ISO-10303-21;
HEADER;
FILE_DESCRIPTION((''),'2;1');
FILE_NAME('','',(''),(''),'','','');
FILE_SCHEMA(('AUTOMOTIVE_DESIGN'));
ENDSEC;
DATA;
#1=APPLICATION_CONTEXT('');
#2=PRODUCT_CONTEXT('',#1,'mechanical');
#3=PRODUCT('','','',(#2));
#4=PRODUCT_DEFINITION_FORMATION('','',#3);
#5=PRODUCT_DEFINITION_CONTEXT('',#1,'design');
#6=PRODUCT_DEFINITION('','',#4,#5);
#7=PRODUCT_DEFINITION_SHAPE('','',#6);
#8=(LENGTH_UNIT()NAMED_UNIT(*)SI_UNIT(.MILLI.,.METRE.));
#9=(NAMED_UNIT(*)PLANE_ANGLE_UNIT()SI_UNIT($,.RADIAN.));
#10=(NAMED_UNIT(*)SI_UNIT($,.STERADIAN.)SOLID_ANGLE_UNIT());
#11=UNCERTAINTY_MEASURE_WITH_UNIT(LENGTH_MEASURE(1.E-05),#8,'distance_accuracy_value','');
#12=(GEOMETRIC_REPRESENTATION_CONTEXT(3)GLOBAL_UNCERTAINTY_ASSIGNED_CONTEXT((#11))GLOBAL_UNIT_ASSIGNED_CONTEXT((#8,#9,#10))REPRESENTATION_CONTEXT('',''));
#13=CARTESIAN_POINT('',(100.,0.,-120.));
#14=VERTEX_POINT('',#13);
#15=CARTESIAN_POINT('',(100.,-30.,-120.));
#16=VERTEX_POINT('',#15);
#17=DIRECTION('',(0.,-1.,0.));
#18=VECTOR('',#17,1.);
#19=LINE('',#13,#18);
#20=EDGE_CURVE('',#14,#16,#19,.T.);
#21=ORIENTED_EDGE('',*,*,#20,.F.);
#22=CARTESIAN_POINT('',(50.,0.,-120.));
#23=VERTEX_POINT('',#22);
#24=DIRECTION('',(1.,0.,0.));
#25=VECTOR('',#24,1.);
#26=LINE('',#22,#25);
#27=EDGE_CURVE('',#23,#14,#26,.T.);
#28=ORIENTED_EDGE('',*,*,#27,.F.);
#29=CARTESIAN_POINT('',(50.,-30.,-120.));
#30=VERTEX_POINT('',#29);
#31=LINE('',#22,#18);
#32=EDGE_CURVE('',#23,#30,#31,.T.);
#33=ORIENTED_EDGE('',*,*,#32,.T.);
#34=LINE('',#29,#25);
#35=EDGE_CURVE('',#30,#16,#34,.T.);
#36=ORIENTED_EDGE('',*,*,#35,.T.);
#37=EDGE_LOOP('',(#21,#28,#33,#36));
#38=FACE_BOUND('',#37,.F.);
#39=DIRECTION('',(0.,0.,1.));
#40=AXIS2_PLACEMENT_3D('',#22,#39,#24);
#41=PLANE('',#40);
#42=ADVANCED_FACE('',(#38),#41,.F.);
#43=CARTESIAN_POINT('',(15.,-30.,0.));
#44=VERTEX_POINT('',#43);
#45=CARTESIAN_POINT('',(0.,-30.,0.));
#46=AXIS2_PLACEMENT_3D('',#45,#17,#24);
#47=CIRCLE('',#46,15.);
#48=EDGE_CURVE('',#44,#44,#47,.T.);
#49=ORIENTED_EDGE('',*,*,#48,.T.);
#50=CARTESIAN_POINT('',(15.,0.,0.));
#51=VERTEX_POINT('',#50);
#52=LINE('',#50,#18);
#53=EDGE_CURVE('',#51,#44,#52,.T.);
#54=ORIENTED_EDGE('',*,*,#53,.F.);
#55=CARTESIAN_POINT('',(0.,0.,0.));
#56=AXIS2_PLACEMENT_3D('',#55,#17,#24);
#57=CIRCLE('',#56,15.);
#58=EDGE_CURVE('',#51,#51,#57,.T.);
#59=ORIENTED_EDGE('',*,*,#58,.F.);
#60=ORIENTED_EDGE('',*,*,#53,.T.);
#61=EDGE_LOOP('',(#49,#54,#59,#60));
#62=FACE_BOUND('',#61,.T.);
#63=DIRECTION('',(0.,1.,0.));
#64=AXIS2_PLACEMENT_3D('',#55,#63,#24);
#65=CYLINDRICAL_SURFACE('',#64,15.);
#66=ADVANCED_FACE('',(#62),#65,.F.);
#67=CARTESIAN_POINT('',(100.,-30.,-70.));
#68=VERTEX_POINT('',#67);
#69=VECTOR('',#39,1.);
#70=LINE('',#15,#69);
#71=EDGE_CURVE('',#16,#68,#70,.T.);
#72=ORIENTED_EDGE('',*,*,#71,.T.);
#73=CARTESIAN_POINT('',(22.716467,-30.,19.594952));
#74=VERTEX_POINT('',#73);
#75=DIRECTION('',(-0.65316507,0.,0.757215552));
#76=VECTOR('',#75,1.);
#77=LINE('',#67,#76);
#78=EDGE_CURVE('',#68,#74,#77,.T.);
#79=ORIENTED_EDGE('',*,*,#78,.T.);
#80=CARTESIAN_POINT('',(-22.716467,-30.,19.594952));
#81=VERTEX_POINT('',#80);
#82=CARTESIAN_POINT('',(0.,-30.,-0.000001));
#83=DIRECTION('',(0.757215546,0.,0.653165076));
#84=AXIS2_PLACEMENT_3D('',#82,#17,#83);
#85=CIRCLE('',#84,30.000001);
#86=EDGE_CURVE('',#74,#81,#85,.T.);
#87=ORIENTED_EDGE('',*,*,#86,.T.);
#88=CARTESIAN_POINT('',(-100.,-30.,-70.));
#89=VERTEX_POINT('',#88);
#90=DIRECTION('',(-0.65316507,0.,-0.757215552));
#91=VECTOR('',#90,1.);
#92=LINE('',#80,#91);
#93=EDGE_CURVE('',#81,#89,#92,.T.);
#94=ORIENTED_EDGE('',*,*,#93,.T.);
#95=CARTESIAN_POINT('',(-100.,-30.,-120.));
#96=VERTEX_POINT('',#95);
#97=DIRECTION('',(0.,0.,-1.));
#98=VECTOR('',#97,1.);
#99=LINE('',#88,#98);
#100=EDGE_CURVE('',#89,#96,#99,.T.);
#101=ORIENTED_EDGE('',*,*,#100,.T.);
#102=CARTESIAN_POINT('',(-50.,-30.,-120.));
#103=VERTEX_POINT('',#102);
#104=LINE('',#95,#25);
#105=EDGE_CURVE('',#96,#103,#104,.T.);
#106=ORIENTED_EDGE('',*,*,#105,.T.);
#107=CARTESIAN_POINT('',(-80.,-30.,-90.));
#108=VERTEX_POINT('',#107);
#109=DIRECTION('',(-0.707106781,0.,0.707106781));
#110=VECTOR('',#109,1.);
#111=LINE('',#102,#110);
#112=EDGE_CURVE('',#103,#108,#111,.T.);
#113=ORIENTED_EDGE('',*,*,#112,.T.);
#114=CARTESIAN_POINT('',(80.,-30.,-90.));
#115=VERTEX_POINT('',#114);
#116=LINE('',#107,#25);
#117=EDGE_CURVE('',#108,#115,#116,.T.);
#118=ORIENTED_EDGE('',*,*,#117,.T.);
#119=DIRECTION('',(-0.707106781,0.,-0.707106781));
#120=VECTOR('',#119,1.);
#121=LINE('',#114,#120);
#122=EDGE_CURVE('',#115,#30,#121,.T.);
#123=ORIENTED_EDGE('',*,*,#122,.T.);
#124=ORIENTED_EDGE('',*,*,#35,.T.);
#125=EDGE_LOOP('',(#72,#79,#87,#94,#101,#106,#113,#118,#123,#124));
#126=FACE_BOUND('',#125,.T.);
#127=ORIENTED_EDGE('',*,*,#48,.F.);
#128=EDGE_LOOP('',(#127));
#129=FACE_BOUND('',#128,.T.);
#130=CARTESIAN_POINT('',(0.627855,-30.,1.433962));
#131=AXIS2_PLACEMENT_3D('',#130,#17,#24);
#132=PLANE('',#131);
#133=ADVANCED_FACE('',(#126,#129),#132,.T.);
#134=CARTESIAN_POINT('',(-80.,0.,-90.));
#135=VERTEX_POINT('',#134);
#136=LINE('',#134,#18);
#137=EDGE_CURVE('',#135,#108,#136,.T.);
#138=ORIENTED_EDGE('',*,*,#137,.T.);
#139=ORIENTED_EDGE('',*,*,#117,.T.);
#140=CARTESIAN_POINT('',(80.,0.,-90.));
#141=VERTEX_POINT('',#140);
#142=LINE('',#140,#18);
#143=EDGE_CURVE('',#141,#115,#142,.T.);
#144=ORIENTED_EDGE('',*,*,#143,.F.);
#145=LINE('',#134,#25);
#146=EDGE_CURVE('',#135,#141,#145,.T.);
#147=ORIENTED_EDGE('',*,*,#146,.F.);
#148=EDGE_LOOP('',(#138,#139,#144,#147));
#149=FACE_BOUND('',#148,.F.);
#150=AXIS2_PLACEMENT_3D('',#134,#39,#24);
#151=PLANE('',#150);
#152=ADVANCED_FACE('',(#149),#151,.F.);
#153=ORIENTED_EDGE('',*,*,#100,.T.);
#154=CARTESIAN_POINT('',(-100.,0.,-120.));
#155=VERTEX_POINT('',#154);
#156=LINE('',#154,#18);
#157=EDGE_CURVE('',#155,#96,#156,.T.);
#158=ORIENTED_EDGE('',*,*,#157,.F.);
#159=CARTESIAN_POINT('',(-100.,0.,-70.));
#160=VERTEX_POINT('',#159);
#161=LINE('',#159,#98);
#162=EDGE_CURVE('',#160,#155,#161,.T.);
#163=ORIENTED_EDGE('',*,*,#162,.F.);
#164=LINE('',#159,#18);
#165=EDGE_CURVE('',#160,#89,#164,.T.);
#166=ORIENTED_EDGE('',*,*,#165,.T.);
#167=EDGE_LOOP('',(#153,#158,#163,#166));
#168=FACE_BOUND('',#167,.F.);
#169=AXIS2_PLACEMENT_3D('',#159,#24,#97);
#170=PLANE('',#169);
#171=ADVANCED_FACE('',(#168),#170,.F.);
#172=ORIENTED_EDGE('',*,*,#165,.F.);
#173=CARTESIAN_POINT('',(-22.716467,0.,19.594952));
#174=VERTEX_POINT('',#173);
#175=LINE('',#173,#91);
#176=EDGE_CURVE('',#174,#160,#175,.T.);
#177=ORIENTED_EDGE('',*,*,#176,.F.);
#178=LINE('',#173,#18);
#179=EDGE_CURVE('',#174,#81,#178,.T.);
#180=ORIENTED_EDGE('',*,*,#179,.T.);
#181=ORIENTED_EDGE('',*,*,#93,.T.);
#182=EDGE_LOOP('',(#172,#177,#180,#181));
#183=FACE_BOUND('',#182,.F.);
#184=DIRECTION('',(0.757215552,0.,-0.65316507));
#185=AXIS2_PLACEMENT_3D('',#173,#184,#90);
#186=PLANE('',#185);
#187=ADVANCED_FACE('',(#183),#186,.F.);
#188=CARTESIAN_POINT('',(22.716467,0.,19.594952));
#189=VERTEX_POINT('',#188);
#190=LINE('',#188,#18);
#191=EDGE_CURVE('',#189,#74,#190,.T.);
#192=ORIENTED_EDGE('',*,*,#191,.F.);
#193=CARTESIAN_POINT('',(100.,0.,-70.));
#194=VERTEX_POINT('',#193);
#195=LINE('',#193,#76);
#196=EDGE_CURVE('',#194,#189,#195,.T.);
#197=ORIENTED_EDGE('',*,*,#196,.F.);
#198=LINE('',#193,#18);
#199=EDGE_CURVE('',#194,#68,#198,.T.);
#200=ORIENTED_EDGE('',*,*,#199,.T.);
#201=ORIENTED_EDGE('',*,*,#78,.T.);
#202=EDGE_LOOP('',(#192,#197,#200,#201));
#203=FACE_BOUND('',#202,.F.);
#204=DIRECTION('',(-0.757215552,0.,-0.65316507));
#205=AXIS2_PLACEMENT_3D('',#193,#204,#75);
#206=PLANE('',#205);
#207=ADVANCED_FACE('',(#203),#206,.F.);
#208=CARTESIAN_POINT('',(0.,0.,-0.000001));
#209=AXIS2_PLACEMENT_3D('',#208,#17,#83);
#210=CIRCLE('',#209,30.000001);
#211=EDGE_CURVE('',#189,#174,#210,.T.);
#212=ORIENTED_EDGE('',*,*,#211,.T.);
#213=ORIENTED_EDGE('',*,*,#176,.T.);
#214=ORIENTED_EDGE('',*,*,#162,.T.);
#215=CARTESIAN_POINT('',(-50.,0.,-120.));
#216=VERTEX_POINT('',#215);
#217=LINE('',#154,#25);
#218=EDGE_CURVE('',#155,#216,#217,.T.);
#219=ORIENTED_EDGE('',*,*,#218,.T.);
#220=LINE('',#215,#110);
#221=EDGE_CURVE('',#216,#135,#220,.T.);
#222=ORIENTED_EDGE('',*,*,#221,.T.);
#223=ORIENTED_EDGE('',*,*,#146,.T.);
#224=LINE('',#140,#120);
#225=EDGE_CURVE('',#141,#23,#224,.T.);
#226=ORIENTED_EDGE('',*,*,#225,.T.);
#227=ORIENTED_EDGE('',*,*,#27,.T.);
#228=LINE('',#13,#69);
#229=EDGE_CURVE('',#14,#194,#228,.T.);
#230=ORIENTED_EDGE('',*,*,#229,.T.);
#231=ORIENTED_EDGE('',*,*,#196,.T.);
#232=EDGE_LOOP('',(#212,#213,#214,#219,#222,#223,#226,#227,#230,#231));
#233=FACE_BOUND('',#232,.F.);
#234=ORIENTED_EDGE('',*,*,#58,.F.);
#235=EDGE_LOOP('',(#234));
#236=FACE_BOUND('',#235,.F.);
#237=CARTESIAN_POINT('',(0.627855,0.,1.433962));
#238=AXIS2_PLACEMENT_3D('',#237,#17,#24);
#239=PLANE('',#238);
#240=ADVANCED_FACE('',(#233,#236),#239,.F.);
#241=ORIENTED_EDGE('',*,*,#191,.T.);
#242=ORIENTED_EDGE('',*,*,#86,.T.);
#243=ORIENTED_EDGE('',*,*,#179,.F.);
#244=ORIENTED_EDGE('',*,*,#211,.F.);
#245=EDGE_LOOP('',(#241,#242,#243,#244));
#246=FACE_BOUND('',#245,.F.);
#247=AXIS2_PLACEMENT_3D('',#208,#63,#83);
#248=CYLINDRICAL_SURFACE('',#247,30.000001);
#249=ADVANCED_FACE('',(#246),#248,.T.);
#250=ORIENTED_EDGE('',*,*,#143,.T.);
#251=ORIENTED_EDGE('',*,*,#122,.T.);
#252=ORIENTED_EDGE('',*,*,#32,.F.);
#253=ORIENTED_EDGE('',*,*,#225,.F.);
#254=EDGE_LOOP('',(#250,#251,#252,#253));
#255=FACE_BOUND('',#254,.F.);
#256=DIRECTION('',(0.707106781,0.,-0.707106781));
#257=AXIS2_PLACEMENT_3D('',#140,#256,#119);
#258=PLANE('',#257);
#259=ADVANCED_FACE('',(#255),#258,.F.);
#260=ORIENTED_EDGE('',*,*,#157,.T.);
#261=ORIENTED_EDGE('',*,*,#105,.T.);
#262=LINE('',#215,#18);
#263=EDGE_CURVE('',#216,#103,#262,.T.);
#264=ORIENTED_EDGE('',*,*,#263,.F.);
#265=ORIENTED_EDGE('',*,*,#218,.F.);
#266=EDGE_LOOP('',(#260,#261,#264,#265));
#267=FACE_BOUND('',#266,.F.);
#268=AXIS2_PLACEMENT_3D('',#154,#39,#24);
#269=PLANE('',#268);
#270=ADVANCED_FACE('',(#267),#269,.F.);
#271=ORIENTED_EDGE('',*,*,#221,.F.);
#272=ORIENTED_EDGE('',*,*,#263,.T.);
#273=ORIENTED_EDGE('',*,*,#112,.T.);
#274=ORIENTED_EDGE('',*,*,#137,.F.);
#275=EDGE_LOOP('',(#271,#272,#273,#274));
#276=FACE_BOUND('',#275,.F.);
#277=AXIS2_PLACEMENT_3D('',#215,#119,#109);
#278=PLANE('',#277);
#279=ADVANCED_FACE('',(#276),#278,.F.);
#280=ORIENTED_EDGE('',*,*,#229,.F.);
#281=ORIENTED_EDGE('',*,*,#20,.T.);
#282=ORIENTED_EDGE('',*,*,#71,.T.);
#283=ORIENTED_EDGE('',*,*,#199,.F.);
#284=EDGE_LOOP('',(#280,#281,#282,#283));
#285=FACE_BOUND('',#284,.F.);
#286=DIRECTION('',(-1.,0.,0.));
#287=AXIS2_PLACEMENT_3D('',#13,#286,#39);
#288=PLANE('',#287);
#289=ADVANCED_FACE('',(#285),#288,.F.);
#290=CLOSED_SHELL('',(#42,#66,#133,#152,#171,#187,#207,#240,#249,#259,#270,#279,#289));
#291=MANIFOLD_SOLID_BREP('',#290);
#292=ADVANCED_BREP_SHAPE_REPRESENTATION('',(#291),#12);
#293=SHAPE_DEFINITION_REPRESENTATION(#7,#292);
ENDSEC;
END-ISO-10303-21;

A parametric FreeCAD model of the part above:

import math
import FreeCAD as App
import Part
import Sketcher
Q = App.Units.Quantity

doc = App.newDocument("Part")
body = doc.addObject("PartDesign::Body", "Body")

# Sketch on XZ plane
sketch1 = body.newObject("Sketcher::SketchObject", "Sketch")
sketch1.AttachmentSupport = (doc.getObject("XZ_Plane"), [""])
sketch1.MapMode = "FlatFace"
sketch1.addGeometry(Part.ArcOfCircle(Part.Circle(App.Vector(0, -0.000001, 0), App.Vector(0, 0, 1), 30.000001), math.radians(40.780662), math.radians(139.219338)), False)
sketch1.addGeometry(Part.LineSegment(App.Vector(-22.716467, 19.594952, 0), App.Vector(-100, -70, 0)), False)
sketch1.addGeometry(Part.LineSegment(App.Vector(-100, -70, 0), App.Vector(-100, -120, 0)), False)
sketch1.addGeometry(Part.LineSegment(App.Vector(-100, -120, 0), App.Vector(-50, -120, 0)), False)
sketch1.addGeometry(Part.LineSegment(App.Vector(-50, -120, 0), App.Vector(-80, -90, 0)), False)
sketch1.addGeometry(Part.LineSegment(App.Vector(-80, -90, 0), App.Vector(80, -90, 0)), False)
sketch1.addGeometry(Part.LineSegment(App.Vector(80, -90, 0), App.Vector(50, -120, 0)), False)
sketch1.addGeometry(Part.LineSegment(App.Vector(50, -120, 0), App.Vector(100, -120, 0)), False)
sketch1.addGeometry(Part.LineSegment(App.Vector(100, -120, 0), App.Vector(100, -70, 0)), False)
sketch1.addGeometry(Part.LineSegment(App.Vector(100, -70, 0), App.Vector(22.716467, 19.594952, 0)), False)
sketch1.addGeometry(Part.Circle(App.Vector(0, 0, 0), App.Vector(0, 0, 1), 15), False)
sketch1.addConstraint(Sketcher.Constraint("Tangent", 0, 2, 1, 1))
sketch1.addConstraint(Sketcher.Constraint("Coincident", 1, 2, 2, 1))
sketch1.addConstraint(Sketcher.Constraint("Coincident", 2, 2, 3, 1))
sketch1.addConstraint(Sketcher.Constraint("Coincident", 3, 2, 4, 1))
sketch1.addConstraint(Sketcher.Constraint("Coincident", 4, 2, 5, 1))
sketch1.addConstraint(Sketcher.Constraint("Coincident", 5, 2, 6, 1))
sketch1.addConstraint(Sketcher.Constraint("Coincident", 6, 2, 7, 1))
sketch1.addConstraint(Sketcher.Constraint("Coincident", 7, 2, 8, 1))
sketch1.addConstraint(Sketcher.Constraint("Coincident", 8, 2, 9, 1))
sketch1.addConstraint(Sketcher.Constraint("Tangent", 9, 2, 0, 1))
sketch1.addConstraint(Sketcher.Constraint("Vertical", 2))
sketch1.addConstraint(Sketcher.Constraint("Horizontal", 3))
sketch1.addConstraint(Sketcher.Constraint("Horizontal", 5))
sketch1.addConstraint(Sketcher.Constraint("Horizontal", 7))
sketch1.addConstraint(Sketcher.Constraint("Vertical", 8))
sketch1.addConstraint(Sketcher.Constraint("Coincident", 0, 3, -1, 1))
sketch1.addConstraint(Sketcher.Constraint("Coincident", 10, 3, -1, 1))
sketch1.addConstraint(Sketcher.Constraint("Symmetric", 3, 2, 6, 2, -2))
sketch1.addConstraint(Sketcher.Constraint("Symmetric", 1, 2, 8, 2, -2))
sketch1.addConstraint(Sketcher.Constraint("Perpendicular", 4, 6))
sketch1.addConstraint(Sketcher.Constraint("Equal", 7, 2))
sketch1.addConstraint(Sketcher.Constraint("Equal", 4, 6))
sketch1.addConstraint(Sketcher.Constraint("Diameter", 10, Q("30 mm")))
sketch1.addConstraint(Sketcher.Constraint("Radius", 0, Q("30.000001 mm")))
sketch1.addConstraint(Sketcher.Constraint("DistanceX", 3, 1, 3, 2, Q("50 mm")))
sketch1.addConstraint(Sketcher.Constraint("DistanceX", 5, 1, 5, 2, Q("160 mm")))
sketch1.addConstraint(Sketcher.Constraint("DistanceX", 1, 2, -1, 1, Q("100 mm")))
sketch1.addConstraint(Sketcher.Constraint("DistanceY", 1, 2, -1, 1, Q("70 mm")))
pad1 = body.newObject("PartDesign::Pad", "Pad")
pad1.Profile = sketch1
pad1.Length = 30

doc.recompute()
